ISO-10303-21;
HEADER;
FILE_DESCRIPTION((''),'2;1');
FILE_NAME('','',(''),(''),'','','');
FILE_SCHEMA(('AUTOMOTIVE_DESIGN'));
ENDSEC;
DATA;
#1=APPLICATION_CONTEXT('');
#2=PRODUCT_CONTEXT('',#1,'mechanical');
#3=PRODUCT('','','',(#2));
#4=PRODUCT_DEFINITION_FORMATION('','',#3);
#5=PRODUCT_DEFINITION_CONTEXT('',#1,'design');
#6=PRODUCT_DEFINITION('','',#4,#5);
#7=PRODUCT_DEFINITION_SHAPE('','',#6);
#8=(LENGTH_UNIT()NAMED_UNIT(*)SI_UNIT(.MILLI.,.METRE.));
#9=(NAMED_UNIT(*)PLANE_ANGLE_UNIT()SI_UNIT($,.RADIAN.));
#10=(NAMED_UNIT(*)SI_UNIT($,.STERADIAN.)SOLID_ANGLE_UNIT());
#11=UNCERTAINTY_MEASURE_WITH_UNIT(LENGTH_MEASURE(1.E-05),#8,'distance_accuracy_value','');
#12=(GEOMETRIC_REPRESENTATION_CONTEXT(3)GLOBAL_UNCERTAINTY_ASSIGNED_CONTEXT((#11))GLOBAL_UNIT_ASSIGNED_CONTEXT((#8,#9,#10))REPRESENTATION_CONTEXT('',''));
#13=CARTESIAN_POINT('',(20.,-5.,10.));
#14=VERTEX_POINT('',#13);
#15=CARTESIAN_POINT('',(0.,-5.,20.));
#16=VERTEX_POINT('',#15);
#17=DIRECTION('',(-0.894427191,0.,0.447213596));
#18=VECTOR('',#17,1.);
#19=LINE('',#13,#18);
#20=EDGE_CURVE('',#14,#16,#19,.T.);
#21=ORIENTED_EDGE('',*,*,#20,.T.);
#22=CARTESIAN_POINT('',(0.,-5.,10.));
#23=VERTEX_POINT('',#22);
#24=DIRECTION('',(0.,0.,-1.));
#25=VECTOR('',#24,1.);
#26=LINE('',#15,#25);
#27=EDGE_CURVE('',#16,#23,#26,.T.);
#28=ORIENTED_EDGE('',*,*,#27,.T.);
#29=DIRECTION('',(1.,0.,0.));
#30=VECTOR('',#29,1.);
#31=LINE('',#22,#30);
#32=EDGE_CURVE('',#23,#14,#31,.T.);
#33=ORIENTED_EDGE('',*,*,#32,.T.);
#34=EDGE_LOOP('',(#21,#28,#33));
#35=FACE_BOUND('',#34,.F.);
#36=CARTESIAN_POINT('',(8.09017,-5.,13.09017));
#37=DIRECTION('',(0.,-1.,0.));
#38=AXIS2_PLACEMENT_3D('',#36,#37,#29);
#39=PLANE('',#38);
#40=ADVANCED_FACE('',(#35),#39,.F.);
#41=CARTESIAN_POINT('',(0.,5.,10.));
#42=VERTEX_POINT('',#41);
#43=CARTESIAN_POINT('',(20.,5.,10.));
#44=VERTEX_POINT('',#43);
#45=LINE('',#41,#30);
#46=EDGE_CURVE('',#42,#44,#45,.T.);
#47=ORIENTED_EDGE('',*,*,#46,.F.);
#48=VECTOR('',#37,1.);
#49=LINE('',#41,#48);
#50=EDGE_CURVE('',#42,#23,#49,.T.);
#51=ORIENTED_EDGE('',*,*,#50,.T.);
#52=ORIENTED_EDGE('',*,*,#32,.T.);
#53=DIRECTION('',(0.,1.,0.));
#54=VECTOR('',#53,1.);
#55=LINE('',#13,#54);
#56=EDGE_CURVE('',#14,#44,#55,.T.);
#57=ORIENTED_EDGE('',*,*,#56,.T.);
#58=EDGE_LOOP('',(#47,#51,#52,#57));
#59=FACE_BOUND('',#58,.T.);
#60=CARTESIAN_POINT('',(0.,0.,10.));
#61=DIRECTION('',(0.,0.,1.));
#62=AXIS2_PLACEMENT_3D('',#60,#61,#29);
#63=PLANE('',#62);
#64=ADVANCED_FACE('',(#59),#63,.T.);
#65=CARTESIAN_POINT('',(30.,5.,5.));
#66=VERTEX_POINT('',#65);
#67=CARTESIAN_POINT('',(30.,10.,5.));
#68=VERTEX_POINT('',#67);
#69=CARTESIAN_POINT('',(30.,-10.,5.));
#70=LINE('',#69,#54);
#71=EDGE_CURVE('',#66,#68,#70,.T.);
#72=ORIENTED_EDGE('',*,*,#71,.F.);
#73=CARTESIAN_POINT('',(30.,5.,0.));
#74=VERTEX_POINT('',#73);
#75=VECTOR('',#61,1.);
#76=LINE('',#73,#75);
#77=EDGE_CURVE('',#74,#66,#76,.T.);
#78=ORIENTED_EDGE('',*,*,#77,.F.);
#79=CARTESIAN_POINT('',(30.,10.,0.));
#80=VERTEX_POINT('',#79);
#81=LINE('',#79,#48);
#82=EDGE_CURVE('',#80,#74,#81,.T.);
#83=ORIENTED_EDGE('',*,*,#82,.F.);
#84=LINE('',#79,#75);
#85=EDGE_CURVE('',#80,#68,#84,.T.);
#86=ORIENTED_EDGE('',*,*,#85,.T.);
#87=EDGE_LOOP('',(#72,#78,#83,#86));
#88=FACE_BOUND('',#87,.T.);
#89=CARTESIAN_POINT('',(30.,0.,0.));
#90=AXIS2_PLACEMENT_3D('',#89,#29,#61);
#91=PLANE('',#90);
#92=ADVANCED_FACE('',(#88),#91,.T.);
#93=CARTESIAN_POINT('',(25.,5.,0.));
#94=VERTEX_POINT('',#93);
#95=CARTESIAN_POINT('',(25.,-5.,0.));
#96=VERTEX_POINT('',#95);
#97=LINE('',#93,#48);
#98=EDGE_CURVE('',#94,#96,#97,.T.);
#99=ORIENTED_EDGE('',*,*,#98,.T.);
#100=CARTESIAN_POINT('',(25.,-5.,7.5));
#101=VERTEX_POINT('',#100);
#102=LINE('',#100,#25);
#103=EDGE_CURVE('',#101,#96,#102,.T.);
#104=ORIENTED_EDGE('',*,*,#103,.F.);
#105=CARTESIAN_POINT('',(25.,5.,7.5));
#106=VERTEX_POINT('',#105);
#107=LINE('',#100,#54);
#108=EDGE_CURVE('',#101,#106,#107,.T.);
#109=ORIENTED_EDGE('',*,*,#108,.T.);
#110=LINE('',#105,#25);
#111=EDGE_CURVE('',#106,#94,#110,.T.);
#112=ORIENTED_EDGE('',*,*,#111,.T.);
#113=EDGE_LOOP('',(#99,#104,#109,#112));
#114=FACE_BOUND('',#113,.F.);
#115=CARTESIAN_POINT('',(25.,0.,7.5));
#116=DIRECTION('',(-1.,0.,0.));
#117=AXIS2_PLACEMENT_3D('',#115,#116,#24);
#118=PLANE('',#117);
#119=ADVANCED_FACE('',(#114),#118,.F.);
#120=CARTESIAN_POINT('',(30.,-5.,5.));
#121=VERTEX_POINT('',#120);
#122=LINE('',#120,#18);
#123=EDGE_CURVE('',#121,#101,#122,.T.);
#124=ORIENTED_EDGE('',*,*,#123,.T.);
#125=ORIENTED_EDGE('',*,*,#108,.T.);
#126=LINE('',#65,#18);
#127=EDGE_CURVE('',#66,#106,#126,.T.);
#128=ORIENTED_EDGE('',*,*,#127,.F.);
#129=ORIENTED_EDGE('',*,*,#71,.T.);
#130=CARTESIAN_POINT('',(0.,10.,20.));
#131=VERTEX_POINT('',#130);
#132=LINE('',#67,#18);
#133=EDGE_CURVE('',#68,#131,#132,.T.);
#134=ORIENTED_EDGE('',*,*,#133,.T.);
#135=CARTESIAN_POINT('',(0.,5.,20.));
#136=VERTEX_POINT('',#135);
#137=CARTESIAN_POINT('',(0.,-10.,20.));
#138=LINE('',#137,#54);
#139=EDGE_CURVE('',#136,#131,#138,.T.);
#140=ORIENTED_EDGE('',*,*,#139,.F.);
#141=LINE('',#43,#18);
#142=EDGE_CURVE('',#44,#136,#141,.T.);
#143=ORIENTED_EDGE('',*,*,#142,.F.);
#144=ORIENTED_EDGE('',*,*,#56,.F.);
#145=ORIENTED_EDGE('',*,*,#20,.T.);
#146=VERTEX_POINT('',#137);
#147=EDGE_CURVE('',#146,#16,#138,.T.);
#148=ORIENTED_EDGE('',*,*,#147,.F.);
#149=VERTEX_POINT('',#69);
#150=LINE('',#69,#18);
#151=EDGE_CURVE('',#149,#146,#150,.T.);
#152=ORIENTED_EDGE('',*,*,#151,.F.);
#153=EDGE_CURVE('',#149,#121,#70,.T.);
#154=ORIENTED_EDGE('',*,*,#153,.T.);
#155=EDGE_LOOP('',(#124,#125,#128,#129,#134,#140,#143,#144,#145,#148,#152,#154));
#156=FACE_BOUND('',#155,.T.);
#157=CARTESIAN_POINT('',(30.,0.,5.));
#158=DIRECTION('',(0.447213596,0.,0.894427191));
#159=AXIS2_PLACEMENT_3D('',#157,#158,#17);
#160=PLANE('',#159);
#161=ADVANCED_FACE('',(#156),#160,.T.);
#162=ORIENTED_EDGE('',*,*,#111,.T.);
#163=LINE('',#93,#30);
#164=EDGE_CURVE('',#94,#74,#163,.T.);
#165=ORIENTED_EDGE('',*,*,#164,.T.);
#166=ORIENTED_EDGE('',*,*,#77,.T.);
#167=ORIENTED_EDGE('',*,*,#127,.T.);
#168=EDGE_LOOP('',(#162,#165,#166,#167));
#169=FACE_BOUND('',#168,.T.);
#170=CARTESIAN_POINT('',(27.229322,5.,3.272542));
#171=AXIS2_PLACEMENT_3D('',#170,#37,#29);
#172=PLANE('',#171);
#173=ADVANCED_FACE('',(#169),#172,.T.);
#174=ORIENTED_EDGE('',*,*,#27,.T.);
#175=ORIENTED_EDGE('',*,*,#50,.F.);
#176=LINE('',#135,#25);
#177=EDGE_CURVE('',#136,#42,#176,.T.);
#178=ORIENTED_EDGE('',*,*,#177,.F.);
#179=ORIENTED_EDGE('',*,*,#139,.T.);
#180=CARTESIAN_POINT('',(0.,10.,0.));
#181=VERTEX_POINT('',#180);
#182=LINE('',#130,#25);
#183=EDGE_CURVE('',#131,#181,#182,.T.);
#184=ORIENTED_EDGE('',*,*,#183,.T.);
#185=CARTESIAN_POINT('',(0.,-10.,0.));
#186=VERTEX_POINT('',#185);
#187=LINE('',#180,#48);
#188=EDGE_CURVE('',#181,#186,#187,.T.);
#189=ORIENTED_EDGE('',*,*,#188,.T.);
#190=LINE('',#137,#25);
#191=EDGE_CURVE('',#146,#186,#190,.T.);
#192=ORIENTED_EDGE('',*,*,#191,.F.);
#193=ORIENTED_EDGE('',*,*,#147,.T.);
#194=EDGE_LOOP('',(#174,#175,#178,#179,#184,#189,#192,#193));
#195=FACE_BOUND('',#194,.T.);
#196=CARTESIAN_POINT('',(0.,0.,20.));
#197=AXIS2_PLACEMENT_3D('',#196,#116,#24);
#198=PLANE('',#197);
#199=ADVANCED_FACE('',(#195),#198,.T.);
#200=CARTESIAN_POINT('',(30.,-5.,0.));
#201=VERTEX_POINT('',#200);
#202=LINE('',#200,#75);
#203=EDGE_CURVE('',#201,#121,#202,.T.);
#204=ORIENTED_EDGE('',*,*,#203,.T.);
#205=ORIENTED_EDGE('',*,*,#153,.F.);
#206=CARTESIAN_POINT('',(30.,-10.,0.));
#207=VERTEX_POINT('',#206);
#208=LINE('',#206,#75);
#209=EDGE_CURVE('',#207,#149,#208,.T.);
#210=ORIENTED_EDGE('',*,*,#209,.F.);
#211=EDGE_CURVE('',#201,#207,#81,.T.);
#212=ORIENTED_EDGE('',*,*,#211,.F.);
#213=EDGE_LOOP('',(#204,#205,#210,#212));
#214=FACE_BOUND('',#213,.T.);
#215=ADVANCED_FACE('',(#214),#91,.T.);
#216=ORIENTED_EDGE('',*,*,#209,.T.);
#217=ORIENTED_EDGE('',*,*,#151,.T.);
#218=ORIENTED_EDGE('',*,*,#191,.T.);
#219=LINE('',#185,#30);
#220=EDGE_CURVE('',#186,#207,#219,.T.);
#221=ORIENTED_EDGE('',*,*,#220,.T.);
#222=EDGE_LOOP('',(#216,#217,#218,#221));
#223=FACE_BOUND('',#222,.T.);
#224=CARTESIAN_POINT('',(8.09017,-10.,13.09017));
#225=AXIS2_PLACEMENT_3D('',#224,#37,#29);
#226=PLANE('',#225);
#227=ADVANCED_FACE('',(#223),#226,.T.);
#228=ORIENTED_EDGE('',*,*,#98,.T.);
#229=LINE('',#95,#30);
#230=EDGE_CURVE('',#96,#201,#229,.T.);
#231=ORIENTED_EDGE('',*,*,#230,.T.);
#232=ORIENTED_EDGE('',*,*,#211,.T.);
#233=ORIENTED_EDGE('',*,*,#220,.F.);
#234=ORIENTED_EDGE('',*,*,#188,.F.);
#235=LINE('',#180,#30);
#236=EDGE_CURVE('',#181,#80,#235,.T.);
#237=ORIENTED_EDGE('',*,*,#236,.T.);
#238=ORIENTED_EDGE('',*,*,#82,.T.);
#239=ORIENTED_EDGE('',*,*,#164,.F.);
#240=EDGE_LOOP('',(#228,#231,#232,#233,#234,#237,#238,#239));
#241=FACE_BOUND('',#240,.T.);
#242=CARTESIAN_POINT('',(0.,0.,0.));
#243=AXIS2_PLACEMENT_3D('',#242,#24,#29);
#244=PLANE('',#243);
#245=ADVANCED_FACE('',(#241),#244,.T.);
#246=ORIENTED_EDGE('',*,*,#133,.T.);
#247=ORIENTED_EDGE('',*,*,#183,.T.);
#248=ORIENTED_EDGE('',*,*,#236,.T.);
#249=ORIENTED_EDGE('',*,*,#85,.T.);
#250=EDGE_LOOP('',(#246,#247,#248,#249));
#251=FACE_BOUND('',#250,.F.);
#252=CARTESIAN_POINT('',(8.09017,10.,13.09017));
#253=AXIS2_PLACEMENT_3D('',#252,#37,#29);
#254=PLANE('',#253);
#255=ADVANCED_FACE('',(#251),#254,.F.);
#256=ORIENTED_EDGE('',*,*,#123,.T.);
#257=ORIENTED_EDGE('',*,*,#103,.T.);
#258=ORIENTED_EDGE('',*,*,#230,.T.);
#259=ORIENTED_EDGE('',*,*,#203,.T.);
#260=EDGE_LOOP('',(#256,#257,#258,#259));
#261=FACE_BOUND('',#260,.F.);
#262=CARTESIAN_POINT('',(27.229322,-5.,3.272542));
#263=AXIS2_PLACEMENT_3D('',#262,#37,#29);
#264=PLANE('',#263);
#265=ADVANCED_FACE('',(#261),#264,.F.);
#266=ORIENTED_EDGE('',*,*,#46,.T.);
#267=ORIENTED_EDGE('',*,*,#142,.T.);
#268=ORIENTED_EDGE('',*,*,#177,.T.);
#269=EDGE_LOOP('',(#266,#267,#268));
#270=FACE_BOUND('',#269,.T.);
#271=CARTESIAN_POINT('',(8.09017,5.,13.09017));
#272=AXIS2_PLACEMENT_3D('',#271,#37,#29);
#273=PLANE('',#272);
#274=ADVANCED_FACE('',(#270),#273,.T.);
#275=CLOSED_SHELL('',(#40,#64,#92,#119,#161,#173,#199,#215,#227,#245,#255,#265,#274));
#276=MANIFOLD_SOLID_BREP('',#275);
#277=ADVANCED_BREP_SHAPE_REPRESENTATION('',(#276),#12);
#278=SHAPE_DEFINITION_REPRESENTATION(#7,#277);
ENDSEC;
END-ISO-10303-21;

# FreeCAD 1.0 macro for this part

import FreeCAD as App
import Part
import Sketcher
from FreeCAD import Vector
Q = App.Units.Quantity


def add_polygon(sketch, points):
    """Adds a closed chain of lines whose ends are joined by coincident constraints."""
    first, n = sketch.GeometryCount, len(points)
    for a, b in zip(points, points[1:] + points[:1]):
        sketch.addGeometry(Part.LineSegment(App.Vector(*a, 0), App.Vector(*b, 0)), False)
    for i in range(n):
        sketch.addConstraint(Sketcher.Constraint("Coincident", first + i, 2, first + (i + 1) % n, 1))

doc = App.newDocument("Part")
params = doc.addObject("Spreadsheet::Sheet", "Params")
for row, (alias, value) in enumerate([
    ("sketch1_width", "30 mm"),
    ("sketch1_height", "20 mm"),
    ("sketch1_height2", "5 mm"),
    ("pad1_length", "20 mm"),
    ("sketch2_width", "20 mm"),
    ("sketch2_width2", "5 mm"),
    ("sketch2_height", "10 mm"),
    ("pocket1_length", "10 mm"),
], start=1):
    params.set(f"A{row}", alias)
    params.set(f"B{row}", "=" + value)
    params.setAlias(f"B{row}", alias)

body = doc.addObject("PartDesign::Body", "Body")

sketch1 = doc.addObject("Sketcher::SketchObject", "Sketch")
body.addObject(sketch1)
sketch1.AttachmentSupport = (doc.XZ_Plane, [""])
sketch1.MapMode = "FlatFace"
add_polygon(sketch1, [(0, 20), (0, 0), (30, 0), (30, 5)])
sketch1.addConstraint([
    Sketcher.Constraint("Vertical", 0),
    Sketcher.Constraint("Horizontal", 1),
    Sketcher.Constraint("Vertical", 2),
    Sketcher.Constraint("Coincident", 0, 2, -1, 1),
    Sketcher.Constraint("DistanceX", 1, 1, 1, 2, Q("30 mm")),
    Sketcher.Constraint("DistanceY", 0, 2, 0, 1, Q("20 mm")),
    Sketcher.Constraint("DistanceY", 2, 1, 2, 2, Q("5 mm")),
])
sketch1.setExpression("Constraints[8]", "Params.sketch1_width")
sketch1.setExpression("Constraints[9]", "Params.sketch1_height")
sketch1.setExpression("Constraints[10]", "Params.sketch1_height2")
pad1 = doc.addObject("PartDesign::Pad", "Pad")
body.addObject(pad1)
pad1.Profile = sketch1
pad1.setExpression("Length", "Params.pad1_length")
pad1.Midplane = True

sketch2 = doc.addObject("Sketcher::SketchObject", "Sketch001")
body.addObject(sketch2)
sketch2.AttachmentSupport = (doc.XZ_Plane, [""])
sketch2.MapMode = "FlatFace"
add_polygon(sketch2, [(0, 20), (0, 10), (20, 10)])
add_polygon(sketch2, [(25, 8), (25, 0), (30, 0), (30, 5)])
sketch2.addConstraint([
    Sketcher.Constraint("Vertical", 0),
    Sketcher.Constraint("Horizontal", 1),
    Sketcher.Constraint("Vertical", 3),
    Sketcher.Constraint("Horizontal", 4),
    Sketcher.Constraint("Vertical", 5),
    Sketcher.Constraint("PointOnObject", 0, 2, -2),
    Sketcher.Constraint("PointOnObject", 3, 2, -1),
    Sketcher.Constraint("Parallel", 2, 6),
    Sketcher.Constraint("Equal", 4, 5),
    Sketcher.Constraint("DistanceX", 1, 1, 1, 2, Q("20 mm")),
    Sketcher.Constraint("DistanceX", 4, 1, 4, 2, Q("5 mm")),
    Sketcher.Constraint("DistanceY", 0, 2, 0, 1, Q("10 mm")),
    Sketcher.Constraint("DistanceY", -1, 1, 0, 2, Q("10 mm")),
    Sketcher.Constraint("DistanceX", -1, 1, 3, 2, Q("25 mm")),
])
sketch2.setExpression("Constraints[16]", "Params.sketch2_width")
sketch2.setExpression("Constraints[17]", "Params.sketch2_width2")
sketch2.setExpression("Constraints[18]", "Params.sketch2_height")
pocket1 = doc.addObject("PartDesign::Pocket", "Pocket")
body.addObject(pocket1)
pocket1.Profile = sketch2
pocket1.setExpression("Length", "Params.pocket1_length")
pocket1.Midplane = True

doc.recompute()
